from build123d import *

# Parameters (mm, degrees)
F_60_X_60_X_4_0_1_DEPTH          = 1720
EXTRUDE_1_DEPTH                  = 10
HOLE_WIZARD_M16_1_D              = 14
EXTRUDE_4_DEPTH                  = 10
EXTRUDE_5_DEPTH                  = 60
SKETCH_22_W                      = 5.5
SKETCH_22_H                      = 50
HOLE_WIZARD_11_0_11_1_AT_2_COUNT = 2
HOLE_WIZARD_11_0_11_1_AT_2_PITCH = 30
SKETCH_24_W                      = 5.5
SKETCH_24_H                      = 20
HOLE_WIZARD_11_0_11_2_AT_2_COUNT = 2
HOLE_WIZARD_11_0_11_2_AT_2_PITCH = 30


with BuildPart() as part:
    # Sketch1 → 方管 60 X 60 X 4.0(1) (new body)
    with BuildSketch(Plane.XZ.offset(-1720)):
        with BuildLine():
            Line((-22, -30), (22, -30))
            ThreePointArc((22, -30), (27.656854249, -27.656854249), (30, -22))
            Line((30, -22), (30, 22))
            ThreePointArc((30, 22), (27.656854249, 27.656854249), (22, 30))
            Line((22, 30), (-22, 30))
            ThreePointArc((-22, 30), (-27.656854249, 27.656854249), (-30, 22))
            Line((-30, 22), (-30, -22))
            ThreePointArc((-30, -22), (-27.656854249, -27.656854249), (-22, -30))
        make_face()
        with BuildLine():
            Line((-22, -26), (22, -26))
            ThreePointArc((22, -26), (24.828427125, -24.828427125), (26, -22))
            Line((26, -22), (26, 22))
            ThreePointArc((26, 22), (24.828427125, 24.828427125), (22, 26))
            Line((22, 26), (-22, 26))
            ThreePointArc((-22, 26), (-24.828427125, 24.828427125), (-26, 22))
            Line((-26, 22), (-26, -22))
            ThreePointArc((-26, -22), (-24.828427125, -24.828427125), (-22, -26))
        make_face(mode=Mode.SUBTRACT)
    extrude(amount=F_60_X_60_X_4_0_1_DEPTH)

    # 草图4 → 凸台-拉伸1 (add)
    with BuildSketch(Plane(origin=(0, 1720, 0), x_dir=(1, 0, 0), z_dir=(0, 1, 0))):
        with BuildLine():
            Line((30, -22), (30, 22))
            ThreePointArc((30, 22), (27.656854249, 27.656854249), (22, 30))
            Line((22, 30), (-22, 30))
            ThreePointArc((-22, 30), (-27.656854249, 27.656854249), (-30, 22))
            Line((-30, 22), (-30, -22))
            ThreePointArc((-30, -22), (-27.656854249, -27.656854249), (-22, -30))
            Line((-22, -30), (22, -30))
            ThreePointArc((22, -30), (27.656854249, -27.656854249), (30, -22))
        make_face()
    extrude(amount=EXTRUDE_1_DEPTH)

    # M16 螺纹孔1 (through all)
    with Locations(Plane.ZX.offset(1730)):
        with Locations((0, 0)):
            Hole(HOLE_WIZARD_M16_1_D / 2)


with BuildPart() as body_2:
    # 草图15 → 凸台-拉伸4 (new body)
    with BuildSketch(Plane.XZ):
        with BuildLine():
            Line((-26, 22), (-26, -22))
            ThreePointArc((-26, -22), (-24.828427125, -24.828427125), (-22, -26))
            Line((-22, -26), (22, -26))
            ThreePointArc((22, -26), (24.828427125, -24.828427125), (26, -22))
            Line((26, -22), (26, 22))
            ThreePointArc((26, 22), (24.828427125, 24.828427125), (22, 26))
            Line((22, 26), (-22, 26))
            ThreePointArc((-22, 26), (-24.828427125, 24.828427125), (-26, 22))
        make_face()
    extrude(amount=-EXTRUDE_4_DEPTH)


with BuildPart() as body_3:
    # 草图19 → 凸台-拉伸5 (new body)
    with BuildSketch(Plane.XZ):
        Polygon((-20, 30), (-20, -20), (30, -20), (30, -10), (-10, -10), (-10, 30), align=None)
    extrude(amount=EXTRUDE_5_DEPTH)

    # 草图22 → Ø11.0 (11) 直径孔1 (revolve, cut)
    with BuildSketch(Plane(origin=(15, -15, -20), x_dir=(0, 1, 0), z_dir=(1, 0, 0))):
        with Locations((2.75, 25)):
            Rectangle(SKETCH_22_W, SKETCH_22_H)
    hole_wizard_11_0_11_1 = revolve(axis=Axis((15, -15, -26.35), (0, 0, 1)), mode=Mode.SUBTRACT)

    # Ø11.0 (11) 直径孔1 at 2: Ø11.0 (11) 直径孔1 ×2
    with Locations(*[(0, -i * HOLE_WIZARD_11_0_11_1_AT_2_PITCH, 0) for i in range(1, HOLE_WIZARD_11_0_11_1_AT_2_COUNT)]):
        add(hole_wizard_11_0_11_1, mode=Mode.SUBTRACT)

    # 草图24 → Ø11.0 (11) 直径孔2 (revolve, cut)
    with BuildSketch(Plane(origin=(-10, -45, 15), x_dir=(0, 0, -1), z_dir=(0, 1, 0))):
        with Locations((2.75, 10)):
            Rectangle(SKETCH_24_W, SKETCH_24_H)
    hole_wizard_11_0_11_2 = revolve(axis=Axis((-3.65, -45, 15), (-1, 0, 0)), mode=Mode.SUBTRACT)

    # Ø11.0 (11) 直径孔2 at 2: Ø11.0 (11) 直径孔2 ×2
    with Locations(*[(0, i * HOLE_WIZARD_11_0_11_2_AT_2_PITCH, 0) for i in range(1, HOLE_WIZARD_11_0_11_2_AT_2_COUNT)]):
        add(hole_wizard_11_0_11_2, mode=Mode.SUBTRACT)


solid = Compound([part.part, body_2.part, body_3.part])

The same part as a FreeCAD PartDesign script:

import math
import FreeCAD as App
import Part
import Sketcher
Q = App.Units.Quantity

doc = App.newDocument("Part")
body = doc.addObject("PartDesign::Body", "Body")

sketch1 = body.newObject("Sketcher::SketchObject", "Sketch")
sketch1.AttachmentSupport = (doc.getObject("XZ_Plane"), [""])
sketch1.MapMode = "FlatFace"
sketch1.AttachmentOffset = App.Placement(App.Vector(0, 0, -1720), App.Rotation())
sketch1.addGeometry(Part.LineSegment(App.Vector(-22, -30, 0), App.Vector(22, -30, 0)), False)
sketch1.addGeometry(Part.ArcOfCircle(Part.Circle(App.Vector(22, -22, 0), App.Vector(0, 0, 1), 8), math.radians(-90), math.radians(0)), False)
sketch1.addGeometry(Part.LineSegment(App.Vector(30, -22, 0), App.Vector(30, 22, 0)), False)
sketch1.addGeometry(Part.ArcOfCircle(Part.Circle(App.Vector(22, 22, 0), App.Vector(0, 0, 1), 8), math.radians(0), math.radians(90)), False)
sketch1.addGeometry(Part.LineSegment(App.Vector(22, 30, 0), App.Vector(-22, 30, 0)), False)
sketch1.addGeometry(Part.ArcOfCircle(Part.Circle(App.Vector(-22, 22, 0), App.Vector(0, 0, 1), 8), math.radians(90), math.radians(180)), False)
sketch1.addGeometry(Part.LineSegment(App.Vector(-30, 22, 0), App.Vector(-30, -22, 0)), False)
sketch1.addGeometry(Part.ArcOfCircle(Part.Circle(App.Vector(-22, -22, 0), App.Vector(0, 0, 1), 8), math.radians(-180), math.radians(-90)), False)
sketch1.addGeometry(Part.LineSegment(App.Vector(22, -26, 0), App.Vector(-22, -26, 0)), False)
sketch1.addGeometry(Part.ArcOfCircle(Part.Circle(App.Vector(-22, -22, 0), App.Vector(0, 0, 1), 4), math.radians(180), math.radians(270)), False)
sketch1.addGeometry(Part.LineSegment(App.Vector(-26, -22, 0), App.Vector(-26, 22, 0)), False)
sketch1.addGeometry(Part.ArcOfCircle(Part.Circle(App.Vector(-22, 22, 0), App.Vector(0, 0, 1), 4), math.radians(90), math.radians(180)), False)
sketch1.addGeometry(Part.LineSegment(App.Vector(-22, 26, 0), App.Vector(22, 26, 0)), False)
sketch1.addGeometry(Part.ArcOfCircle(Part.Circle(App.Vector(22, 22, 0), App.Vector(0, 0, 1), 4), math.radians(0), math.radians(90)), False)
sketch1.addGeometry(Part.LineSegment(App.Vector(26, 22, 0), App.Vector(26, -22, 0)), False)
sketch1.addGeometry(Part.ArcOfCircle(Part.Circle(App.Vector(22, -22, 0), App.Vector(0, 0, 1), 4), math.radians(-90), math.radians(0)), False)
sketch1.addConstraint(Sketcher.Constraint("Tangent", 0, 2, 1, 1))
sketch1.addConstraint(Sketcher.Constraint("Tangent", 1, 2, 2, 1))
sketch1.addConstraint(Sketcher.Constraint("Tangent", 2, 2, 3, 1))
sketch1.addConstraint(Sketcher.Constraint("Tangent", 3, 2, 4, 1))
sketch1.addConstraint(Sketcher.Constraint("Tangent", 4, 2, 5, 1))
sketch1.addConstraint(Sketcher.Constraint("Tangent", 5, 2, 6, 1))
sketch1.addConstraint(Sketcher.Constraint("Tangent", 6, 2, 7, 1))
sketch1.addConstraint(Sketcher.Constraint("Tangent", 7, 2, 0, 1))
sketch1.addConstraint(Sketcher.Constraint("Tangent", 8, 2, 9, 2))
sketch1.addConstraint(Sketcher.Constraint("Tangent", 9, 1, 10, 1))
sketch1.addConstraint(Sketcher.Constraint("Tangent", 10, 2, 11, 2))
sketch1.addConstraint(Sketcher.Constraint("Tangent", 11, 1, 12, 1))
sketch1.addConstraint(Sketcher.Constraint("Tangent", 12, 2, 13, 2))
sketch1.addConstraint(Sketcher.Constraint("Tangent", 13, 1, 14, 1))
sketch1.addConstraint(Sketcher.Constraint("Tangent", 14, 2, 15, 2))
sketch1.addConstraint(Sketcher.Constraint("Tangent", 15, 1, 8, 1))
sketch1.addConstraint(Sketcher.Constraint("Horizontal", 0))
sketch1.addConstraint(Sketcher.Constraint("Vertical", 2))
sketch1.addConstraint(Sketcher.Constraint("Horizontal", 4))
sketch1.addConstraint(Sketcher.Constraint("Vertical", 6))
sketch1.addConstraint(Sketcher.Constraint("Horizontal", 8))
sketch1.addConstraint(Sketcher.Constraint("Vertical", 10))
sketch1.addConstraint(Sketcher.Constraint("Horizontal", 12))
sketch1.addConstraint(Sketcher.Constraint("Vertical", 14))
sketch1.addConstraint(Sketcher.Constraint("Coincident", 9, 3, 7, 3))
sketch1.addConstraint(Sketcher.Constraint("Coincident", 11, 3, 5, 3))
sketch1.addConstraint(Sketcher.Constraint("Coincident", 13, 3, 3, 3))
sketch1.addConstraint(Sketcher.Constraint("Equal", 1, 3))
sketch1.addConstraint(Sketcher.Constraint("Equal", 3, 5))
sketch1.addConstraint(Sketcher.Constraint("Equal", 5, 7))
sketch1.addConstraint(Sketcher.Constraint("Equal", 13, 15))
sketch1.addConstraint(Sketcher.Constraint("Symmetric", 1, 3, 5, 3, -1, 1))
sketch1.addConstraint(Sketcher.Constraint("Equal", 12, 2))
sketch1.addConstraint(Sketcher.Constraint("Radius", 1, Q("8 mm")))
sketch1.addConstraint(Sketcher.Constraint("Radius", 9, Q("4 mm")))
sketch1.addConstraint(Sketcher.Constraint("DistanceX", 0, 1, 0, 2, Q("44 mm")))
pad1 = body.newObject("PartDesign::Pad", "Pad")
pad1.Profile = sketch1
pad1.Length = 1720

sketch2 = body.newObject("Sketcher::SketchObject", "Sketch001")
sketch2.AttachmentSupport = (doc.getObject("XZ_Plane"), [""])
sketch2.MapMode = "FlatFace"
sketch2.AttachmentOffset = App.Placement(App.Vector(0, 0, -1720), App.Rotation())
sketch2.addGeometry(Part.LineSegment(App.Vector(30, 22, 0), App.Vector(30, -22, 0)), False)
sketch2.addGeometry(Part.ArcOfCircle(Part.Circle(App.Vector(22, -22, 0), App.Vector(0, 0, 1), 8), math.radians(-90), math.radians(0)), False)
sketch2.addGeometry(Part.LineSegment(App.Vector(22, -30, 0), App.Vector(-22, -30, 0)), False)
sketch2.addGeometry(Part.ArcOfCircle(Part.Circle(App.Vector(-22, -22, 0), App.Vector(0, 0, 1), 8), math.radians(-180), math.radians(-90)), False)
sketch2.addGeometry(Part.LineSegment(App.Vector(-30, -22, 0), App.Vector(-30, 22, 0)), False)
sketch2.addGeometry(Part.ArcOfCircle(Part.Circle(App.Vector(-22, 22, 0), App.Vector(0, 0, 1), 8), math.radians(90), math.radians(180)), False)
sketch2.addGeometry(Part.LineSegment(App.Vector(-22, 30, 0), App.Vector(22, 30, 0)), False)
sketch2.addGeometry(Part.ArcOfCircle(Part.Circle(App.Vector(22, 22, 0), App.Vector(0, 0, 1), 8), math.radians(0), math.radians(90)), False)
sketch2.addConstraint(Sketcher.Constraint("Tangent", 0, 2, 1, 2))
sketch2.addConstraint(Sketcher.Constraint("Tangent", 1, 1, 2, 1))
sketch2.addConstraint(Sketcher.Constraint("Tangent", 2, 2, 3, 2))
sketch2.addConstraint(Sketcher.Constraint("Tangent", 3, 1, 4, 1))
sketch2.addConstraint(Sketcher.Constraint("Tangent", 4, 2, 5, 2))
sketch2.addConstraint(Sketcher.Constraint("Tangent", 5, 1, 6, 1))
sketch2.addConstraint(Sketcher.Constraint("Tangent", 6, 2, 7, 2))
sketch2.addConstraint(Sketcher.Constraint("Tangent", 7, 1, 0, 1))
sketch2.addConstraint(Sketcher.Constraint("Vertical", 0))
sketch2.addConstraint(Sketcher.Constraint("Horizontal", 2))
sketch2.addConstraint(Sketcher.Constraint("Vertical", 4))
sketch2.addConstraint(Sketcher.Constraint("Horizontal", 6))
sketch2.addConstraint(Sketcher.Constraint("Equal", 1, 3))
sketch2.addConstraint(Sketcher.Constraint("Equal", 3, 5))
sketch2.addConstraint(Sketcher.Constraint("Equal", 5, 7))
sketch2.addConstraint(Sketcher.Constraint("Symmetric", 1, 3, 5, 3, -1, 1))
sketch2.addConstraint(Sketcher.Constraint("Equal", 6, 0))
sketch2.addConstraint(Sketcher.Constraint("Radius", 1, Q("8 mm")))
sketch2.addConstraint(Sketcher.Constraint("DistanceX", 2, 2, 2, 1, Q("44 mm")))
pad2 = body.newObject("PartDesign::Pad", "Pad001")
pad2.Profile = sketch2
pad2.Length = 10
pad2.Reversed = True

sketch3 = body.newObject("Sketcher::SketchObject", "Sketch002")
sketch3.AttachmentSupport = (doc.getObject("XZ_Plane"), [""])
sketch3.MapMode = "FlatFace"
sketch3.AttachmentOffset = App.Placement(App.Vector(0, 0, -1730), App.Rotation())
sketch3.addGeometry(Part.Circle(App.Vector(0, 0, 0), App.Vector(0, 0, 1), 7), False)
sketch3.addConstraint(Sketcher.Constraint("Coincident", 0, 3, -1, 1))
sketch3.addConstraint(Sketcher.Constraint("Diameter", 0, Q("14 mm")))
doc.recompute()
hole = body.newObject("PartDesign::Hole", "Hole")
hole.Profile = sketch3
hole.ThreadType = "None"
hole.Diameter = 14
hole.DepthType = "ThroughAll"
hole.Reversed = True
body2 = doc.addObject("PartDesign::Body", "Body001")

sketch4 = body2.newObject("Sketcher::SketchObject", "Sketch003")
sketch4.AttachmentSupport = (doc.getObject("XZ_Plane001"), [""])
sketch4.MapMode = "FlatFace"
sketch4.addGeometry(Part.LineSegment(App.Vector(-26, 22, 0), App.Vector(-26, -22, 0)), False)
sketch4.addGeometry(Part.ArcOfCircle(Part.Circle(App.Vector(-22, -22, 0), App.Vector(0, 0, 1), 4), math.radians(180), math.radians(270)), False)
sketch4.addGeometry(Part.LineSegment(App.Vector(-22, -26, 0), App.Vector(22, -26, 0)), False)
sketch4.addGeometry(Part.ArcOfCircle(Part.Circle(App.Vector(22, -22, 0), App.Vector(0, 0, 1), 4), math.radians(-90), math.radians(0)), False)
sketch4.addGeometry(Part.LineSegment(App.Vector(26, -22, 0), App.Vector(26, 22, 0)), False)
sketch4.addGeometry(Part.ArcOfCircle(Part.Circle(App.Vector(22, 22, 0), App.Vector(0, 0, 1), 4), math.radians(0), math.radians(90)), False)
sketch4.addGeometry(Part.LineSegment(App.Vector(22, 26, 0), App.Vector(-22, 26, 0)), False)
sketch4.addGeometry(Part.ArcOfCircle(Part.Circle(App.Vector(-22, 22, 0), App.Vector(0, 0, 1), 4), math.radians(90), math.radians(180)), False)
sketch4.addConstraint(Sketcher.Constraint("Tangent", 0, 2, 1, 1))
sketch4.addConstraint(Sketcher.Constraint("Tangent", 1, 2, 2, 1))
sketch4.addConstraint(Sketcher.Constraint("Tangent", 2, 2, 3, 1))
sketch4.addConstraint(Sketcher.Constraint("Tangent", 3, 2, 4, 1))
sketch4.addConstraint(Sketcher.Constraint("Tangent", 4, 2, 5, 1))
sketch4.addConstraint(Sketcher.Constraint("Tangent", 5, 2, 6, 1))
sketch4.addConstraint(Sketcher.Constraint("Tangent", 6, 2, 7, 1))
sketch4.addConstraint(Sketcher.Constraint("Tangent", 7, 2, 0, 1))
sketch4.addConstraint(Sketcher.Constraint("Vertical", 0))
sketch4.addConstraint(Sketcher.Constraint("Horizontal", 2))
sketch4.addConstraint(Sketcher.Constraint("Vertical", 4))
sketch4.addConstraint(Sketcher.Constraint("Horizontal", 6))
sketch4.addConstraint(Sketcher.Constraint("Equal", 1, 3))
sketch4.addConstraint(Sketcher.Constraint("Equal", 3, 5))
sketch4.addConstraint(Sketcher.Constraint("Equal", 5, 7))
sketch4.addConstraint(Sketcher.Constraint("Symmetric", 1, 3, 5, 3, -1, 1))
sketch4.addConstraint(Sketcher.Constraint("Equal", 6, 0))
sketch4.addConstraint(Sketcher.Constraint("Radius", 1, Q("4 mm")))
sketch4.addConstraint(Sketcher.Constraint("DistanceX", 2, 1, 2, 2, Q("44 mm")))
pad3 = body2.newObject("PartDesign::Pad", "Pad002")
pad3.Profile = sketch4
pad3.Length = 10
pad3.Reversed = True
body3 = doc.addObject("PartDesign::Body", "Body002")

sketch5 = body3.newObject("Sketcher::SketchObject", "Sketch004")
sketch5.AttachmentSupport = (doc.getObject("XZ_Plane002"), [""])
sketch5.MapMode = "FlatFace"
sketch5.addGeometry(Part.LineSegment(App.Vector(-20, 30, 0), App.Vector(-20, -20, 0)), False)
sketch5.addGeometry(Part.LineSegment(App.Vector(-20, -20, 0), App.Vector(30, -20, 0)), False)
sketch5.addGeometry(Part.LineSegment(App.Vector(30, -20, 0), App.Vector(30, -10, 0)), False)
sketch5.addGeometry(Part.LineSegment(App.Vector(30, -10, 0), App.Vector(-10, -10, 0)), False)
sketch5.addGeometry(Part.LineSegment(App.Vector(-10, -10, 0), App.Vector(-10, 30, 0)), False)
sketch5.addGeometry(Part.LineSegment(App.Vector(-10, 30, 0), App.Vector(-20, 30, 0)), False)
sketch5.addConstraint(Sketcher.Constraint("Coincident", 0, 2, 1, 1))
sketch5.addConstraint(Sketcher.Constraint("Coincident", 1, 2, 2, 1))
sketch5.addConstraint(Sketcher.Constraint("Coincident", 2, 2, 3, 1))
sketch5.addConstraint(Sketcher.Constraint("Coincident", 3, 2, 4, 1))
sketch5.addConstraint(Sketcher.Constraint("Coincident", 4, 2, 5, 1))
sketch5.addConstraint(Sketcher.Constraint("Coincident", 5, 2, 0, 1))
sketch5.addConstraint(Sketcher.Constraint("Vertical", 0))
sketch5.addConstraint(Sketcher.Constraint("Horizontal", 1))
sketch5.addConstraint(Sketcher.Constraint("Vertical", 2))
sketch5.addConstraint(Sketcher.Constraint("Horizontal", 3))
sketch5.addConstraint(Sketcher.Constraint("Vertical", 4))
sketch5.addConstraint(Sketcher.Constraint("Horizontal", 5))
sketch5.addConstraint(Sketcher.Constraint("Equal", 1, 0))
sketch5.addConstraint(Sketcher.Constraint("Equal", 5, 2))
sketch5.addConstraint(Sketcher.Constraint("DistanceX", 1, 1, 1, 2, Q("50 mm")))
sketch5.addConstraint(Sketcher.Constraint("DistanceX", 3, 2, 3, 1, Q("40 mm")))
sketch5.addConstraint(Sketcher.Constraint("DistanceX", 0, 2, -1, 1, Q("20 mm")))
sketch5.addConstraint(Sketcher.Constraint("DistanceY", 0, 2, -1, 1, Q("20 mm")))
pad4 = body3.newObject("PartDesign::Pad", "Pad003")
pad4.Profile = sketch5
pad4.Length = 60

sketch6 = body3.newObject("Sketcher::SketchObject", "Sketch005")
sketch6.AttachmentSupport = (doc.getObject("YZ_Plane002"), [""])
sketch6.MapMode = "FlatFace"
sketch6.AttachmentOffset = App.Placement(App.Vector(0, 0, 15), App.Rotation())
sketch6.addGeometry(Part.LineSegment(App.Vector(-15, 30, 0), App.Vector(-15, -20, 0)), False)
sketch6.addGeometry(Part.LineSegment(App.Vector(-15, -20, 0), App.Vector(-9.5, -20, 0)), False)
sketch6.addGeometry(Part.LineSegment(App.Vector(-9.5, -20, 0), App.Vector(-9.5, 30, 0)), False)
sketch6.addGeometry(Part.LineSegment(App.Vector(-9.5, 30, 0), App.Vector(-15, 30, 0)), False)
sketch6.addGeometry(Part.LineSegment(App.Vector(-15, -20, 0), App.Vector(-15, 30, 0)), True)
sketch6.addConstraint(Sketcher.Constraint("Coincident", 0, 2, 1, 1))
sketch6.addConstraint(Sketcher.Constraint("Coincident", 1, 2, 2, 1))
sketch6.addConstraint(Sketcher.Constraint("Coincident", 2, 2, 3, 1))
sketch6.addConstraint(Sketcher.Constraint("Coincident", 3, 2, 0, 1))
sketch6.addConstraint(Sketcher.Constraint("Vertical", 0))
sketch6.addConstraint(Sketcher.Constraint("Horizontal", 1))
sketch6.addConstraint(Sketcher.Constraint("Vertical", 2))
sketch6.addConstraint(Sketcher.Constraint("Horizontal", 3))
sketch6.addConstraint(Sketcher.Constraint("Vertical", 4))
sketch6.addConstraint(Sketcher.Constraint("Coincident", 4, 1, 0, 2))
sketch6.addConstraint(Sketcher.Constraint("Horizontal", 2, 2, 4, 2))
sketch6.addConstraint(Sketcher.Constraint("DistanceY", 0, 2, 0, 1, Q("50 mm")))
sketch6.addConstraint(Sketcher.Constraint("DistanceX", 1, 1, 1, 2, Q("5.5 mm")))
sketch6.addConstraint(Sketcher.Constraint("DistanceX", 0, 2, -1, 1, Q("15 mm")))
sketch6.addConstraint(Sketcher.Constraint("DistanceY", 0, 2, -1, 1, Q("20 mm")))
groove = body3.newObject("PartDesign::Groove", "Groove")
groove.Profile = sketch6
groove.ReferenceAxis = (sketch6, ["Axis0"])
groove.Angle = 360
doc.recompute()

linearpattern = body3.newObject("PartDesign::LinearPattern", "LinearPattern")
linearpattern.Originals = [groove]
linearpattern.Direction = (doc.getObject("Y_Axis002"), [""])
linearpattern.Mode = "offset"
linearpattern.Offset = 30
linearpattern.Occurrences = 2
linearpattern.Reversed = True
body3.Tip = linearpattern

sketch7 = body3.newObject("Sketcher::SketchObject", "Sketch006")
sketch7.AttachmentSupport = (doc.getObject("XZ_Plane002"), [""])
sketch7.MapMode = "FlatFace"
sketch7.AttachmentOffset = App.Placement(App.Vector(0, 0, 45), App.Rotation())
sketch7.addGeometry(Part.LineSegment(App.Vector(-30, 15, 0), App.Vector(-10, 15, 0)), False)
sketch7.addGeometry(Part.LineSegment(App.Vector(-10, 15, 0), App.Vector(-10, 9.5, 0)), False)
sketch7.addGeometry(Part.LineSegment(App.Vector(-10, 9.5, 0), App.Vector(-30, 9.5, 0)), False)
sketch7.addGeometry(Part.LineSegment(App.Vector(-30, 9.5, 0), App.Vector(-30, 15, 0)), False)
sketch7.addGeometry(Part.LineSegment(App.Vector(-10, 15, 0), App.Vector(-30, 15, 0)), True)
sketch7.addConstraint(Sketcher.Constraint("Coincident", 0, 2, 1, 1))
sketch7.addConstraint(Sketcher.Constraint("Coincident", 1, 2, 2, 1))
sketch7.addConstraint(Sketcher.Constraint("Coincident", 2, 2, 3, 1))
sketch7.addConstraint(Sketcher.Constraint("Coincident", 3, 2, 0, 1))
sketch7.addConstraint(Sketcher.Constraint("Horizontal", 0))
sketch7.addConstraint(Sketcher.Constraint("Vertical", 1))
sketch7.addConstraint(Sketcher.Constraint("Horizontal", 2))
sketch7.addConstraint(Sketcher.Constraint("Vertical", 3))
sketch7.addConstraint(Sketcher.Constraint("Horizontal", 4))
sketch7.addConstraint(Sketcher.Constraint("Coincident", 4, 1, 0, 2))
sketch7.addConstraint(Sketcher.Constraint("Vertical", 2, 2, 4, 2))
sketch7.addConstraint(Sketcher.Constraint("DistanceX", 0, 1, 0, 2, Q("20 mm")))
sketch7.addConstraint(Sketcher.Constraint("DistanceY", 1, 2, 1, 1, Q("5.5 mm")))
sketch7.addConstraint(Sketcher.Constraint("DistanceX", 0, 2, -1, 1, Q("10 mm")))
sketch7.addConstraint(Sketcher.Constraint("DistanceY", -1, 1, 0, 2, Q("15 mm")))
groove2 = body3.newObject("PartDesign::Groove", "Groove001")
groove2.Profile = sketch7
groove2.ReferenceAxis = (sketch7, ["Axis0"])
groove2.Angle = 360
doc.recompute()

linearpattern2 = body3.newObject("PartDesign::LinearPattern", "LinearPattern001")
linearpattern2.Originals = [groove2]
linearpattern2.Direction = (doc.getObject("Y_Axis002"), [""])
linearpattern2.Mode = "offset"
linearpattern2.Offset = 30
linearpattern2.Occurrences = 2
body3.Tip = linearpattern2

doc.recompute()
